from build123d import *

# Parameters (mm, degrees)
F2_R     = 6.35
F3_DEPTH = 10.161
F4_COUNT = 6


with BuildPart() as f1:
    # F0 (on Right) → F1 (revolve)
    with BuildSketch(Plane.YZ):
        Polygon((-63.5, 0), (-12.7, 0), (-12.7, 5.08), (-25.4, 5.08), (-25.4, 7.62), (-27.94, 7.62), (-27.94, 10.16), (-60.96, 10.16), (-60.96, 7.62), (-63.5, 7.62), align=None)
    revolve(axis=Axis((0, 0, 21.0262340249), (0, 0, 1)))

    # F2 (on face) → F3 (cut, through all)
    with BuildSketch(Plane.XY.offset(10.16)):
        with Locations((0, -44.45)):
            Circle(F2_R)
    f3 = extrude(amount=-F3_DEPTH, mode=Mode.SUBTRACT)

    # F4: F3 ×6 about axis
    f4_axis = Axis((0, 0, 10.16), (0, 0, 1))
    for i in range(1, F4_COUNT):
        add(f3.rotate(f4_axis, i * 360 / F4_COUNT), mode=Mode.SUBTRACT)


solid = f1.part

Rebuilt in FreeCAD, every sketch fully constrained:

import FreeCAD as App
import Part
import Sketcher
Q = App.Units.Quantity

doc = App.newDocument("Part")
params = doc.addObject("Spreadsheet::Sheet", "Params")
for row, (alias, value) in enumerate([
    ("sketch1_width", "2 in"),
    ("sketch1_width2", "0.5 in"),
    ("sketch1_width3", "0.1 in"),
    ("sketch1_height", "0.2 in"),
    ("revolution_angle", "360 deg"),
    ("sketch2_diameter", "0.5 in"),
], start=1):
    params.set(f"A{row}", alias)
    params.set(f"B{row}", "=" + value)
    params.setAlias(f"B{row}", alias)

body = doc.addObject("PartDesign::Body", "Body")

# Sketch on YZ plane
sketch1 = doc.addObject("Sketcher::SketchObject", "Sketch")
body.addObject(sketch1)
sketch1.AttachmentSupport = (doc.YZ_Plane, [""])
sketch1.MapMode = "FlatFace"
sketch1.addGeometry([
    Part.LineSegment(App.Vector(-63.5, 0, 0), App.Vector(-12.7, 0, 0)),  # 0
    Part.LineSegment(App.Vector(-12.7, 0, 0), App.Vector(-12.7, 5.1, 0)),  # 1
    Part.LineSegment(App.Vector(-12.7, 5.1, 0), App.Vector(-25.4, 5.1, 0)),  # 2
    Part.LineSegment(App.Vector(-25.4, 5.1, 0), App.Vector(-25.4, 7.6, 0)),  # 3
    Part.LineSegment(App.Vector(-25.4, 7.6, 0), App.Vector(-27.9, 7.6, 0)),  # 4
    Part.LineSegment(App.Vector(-27.9, 7.6, 0), App.Vector(-27.9, 10.2, 0)),  # 5
    Part.LineSegment(App.Vector(-27.9, 10.2, 0), App.Vector(-61, 10.2, 0)),  # 6
    Part.LineSegment(App.Vector(-61, 10.2, 0), App.Vector(-61, 7.6, 0)),  # 7
    Part.LineSegment(App.Vector(-61, 7.6, 0), App.Vector(-63.5, 7.6, 0)),  # 8
    Part.LineSegment(App.Vector(-63.5, 7.6, 0), App.Vector(-63.5, 0, 0)),  # 9
], False)
sketch1.addConstraint([
    Sketcher.Constraint("Coincident", 0, 2, 1, 1),
    Sketcher.Constraint("Coincident", 1, 2, 2, 1),
    Sketcher.Constraint("Coincident", 2, 2, 3, 1),
    Sketcher.Constraint("Coincident", 3, 2, 4, 1),
    Sketcher.Constraint("Coincident", 4, 2, 5, 1),
    Sketcher.Constraint("Coincident", 5, 2, 6, 1),
    Sketcher.Constraint("Coincident", 6, 2, 7, 1),
    Sketcher.Constraint("Coincident", 7, 2, 8, 1),
    Sketcher.Constraint("Coincident", 8, 2, 9, 1),
    Sketcher.Constraint("Coincident", 9, 2, 0, 1),
    Sketcher.Constraint("Horizontal", 0),
    Sketcher.Constraint("Vertical", 1),
    Sketcher.Constraint("Horizontal", 2),
    Sketcher.Constraint("Vertical", 3),
    Sketcher.Constraint("Horizontal", 4),
    Sketcher.Constraint("Vertical", 5),
    Sketcher.Constraint("Horizontal", 6),
    Sketcher.Constraint("Vertical", 7),
    Sketcher.Constraint("Horizontal", 8),
    Sketcher.Constraint("Vertical", 9),
    Sketcher.Constraint("PointOnObject", 0, 2, -1),
    Sketcher.Constraint("Horizontal", 4, 2, 7, 2),
    Sketcher.Constraint("Equal", 4, 8),
    Sketcher.Constraint("Equal", 8, 3),
    Sketcher.Constraint("Equal", 3, 5),
    Sketcher.Constraint("DistanceX", 0, 1, 0, 2, Q("2 in")),
    Sketcher.Constraint("DistanceX", 2, 2, 2, 1, Q("0.5 in")),
    Sketcher.Constraint("DistanceX", 4, 2, 4, 1, Q("0.1 in")),
    Sketcher.Constraint("DistanceY", 1, 1, 1, 2, Q("0.2 in")),
    Sketcher.Constraint("DistanceX", 2, 2, -1, 1, Q("1 in")),
])
sketch1.setExpression("Constraints[25]", "Params.sketch1_width")
sketch1.setExpression("Constraints[26]", "Params.sketch1_width2")
sketch1.setExpression("Constraints[27]", "Params.sketch1_width3")
sketch1.setExpression("Constraints[28]", "Params.sketch1_height")
revolution = doc.addObject("PartDesign::Revolution", "Revolution")
body.addObject(revolution)
revolution.Profile = sketch1
revolution.ReferenceAxis = (sketch1, ["V_Axis"])
revolution.setExpression("Angle", "Params.revolution_angle")

# Sketch on XY plane
sketch2 = doc.addObject("Sketcher::SketchObject", "Sketch001")
body.addObject(sketch2)
sketch2.AttachmentSupport = (doc.XY_Plane, [""])
sketch2.MapMode = "FlatFace"
sketch2.AttachmentOffset = App.Placement(App.Vector(0, 0, 0.4 * 25.4), App.Rotation())
sketch2.addGeometry(Part.Circle(App.Vector(0, -44, 0), App.Vector(0, 0, 1), 6), False)
sketch2.addConstraint([
    Sketcher.Constraint("PointOnObject", 0, 3, -2),
    Sketcher.Constraint("Diameter", 0, Q("0.5 in")),
    Sketcher.Constraint("DistanceY", 0, 3, -1, 1, Q("1.75 in")),
])
sketch2.setExpression("Constraints[1]", "Params.sketch2_diameter")
pocket1 = doc.addObject("PartDesign::Pocket", "Pocket")
body.addObject(pocket1)
pocket1.Profile = sketch2
pocket1.Type = "ThroughAll"
doc.recompute()

polarpattern = doc.addObject("PartDesign::PolarPattern", "PolarPattern")
body.addObject(polarpattern)
polarpattern.Originals = [pocket1]
polarpattern.Axis = (doc.Z_Axis, [""])
polarpattern.Angle = 360
polarpattern.Occurrences = 6
body.Tip = polarpattern

doc.recompute()
